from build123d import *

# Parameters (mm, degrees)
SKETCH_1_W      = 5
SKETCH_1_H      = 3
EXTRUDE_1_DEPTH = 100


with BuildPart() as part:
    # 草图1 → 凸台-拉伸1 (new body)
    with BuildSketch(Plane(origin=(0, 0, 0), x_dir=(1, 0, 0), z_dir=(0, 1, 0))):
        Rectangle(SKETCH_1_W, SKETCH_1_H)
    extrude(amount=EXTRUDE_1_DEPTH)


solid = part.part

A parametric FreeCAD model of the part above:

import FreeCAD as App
import Part
import Sketcher

doc = App.newDocument("Part")
params = doc.addObject("Spreadsheet::Sheet", "Params")
for row, (alias, value) in enumerate([
    ("sketch1_width", "5 mm"),
    ("sketch1_height", "3 mm"),
    ("pad1_length", "100 mm"),
], start=1):
    params.set(f"A{row}", alias)
    params.set(f"B{row}", "=" + value)
    params.setAlias(f"B{row}", alias)

body = doc.addObject("PartDesign::Body", "Body")

# Sketch on XZ plane
sketch1 = doc.addObject("Sketcher::SketchObject", "Sketch")
body.addObject(sketch1)
sketch1.AttachmentSupport = (doc.XZ_Plane, [""])
sketch1.MapMode = "FlatFace"
sketch1.addGeometry([
    Part.LineSegment(App.Vector(-2.5, -1.5, 0), App.Vector(-2.5, 1.5, 0)),
    Part.LineSegment(App.Vector(-2.5, 1.5, 0), App.Vector(2.5, 1.5, 0)),
    Part.LineSegment(App.Vector(2.5, 1.5, 0), App.Vector(2.5, -1.5, 0)),
    Part.LineSegment(App.Vector(2.5, -1.5, 0), App.Vector(-2.5, -1.5, 0)),
], False)
sketch1.addConstraint([
    Sketcher.Constraint("Coincident", 0, 2, 1, 1),
    Sketcher.Constraint("Coincident", 1, 2, 2, 1),
    Sketcher.Constraint("Coincident", 2, 2, 3, 1),
    Sketcher.Constraint("Coincident", 3, 2, 0, 1),
    Sketcher.Constraint("Vertical", 0),
    Sketcher.Constraint("Horizontal", 1),
    Sketcher.Constraint("Vertical", 2),
    Sketcher.Constraint("Horizontal", 3),
    Sketcher.Constraint("Symmetric", 0, 2, 2, 2, -1, 1),
    Sketcher.Constraint("DistanceX", 1, 1, 1, 2, 5.0),
    Sketcher.Constraint("DistanceY", 0, 1, 0, 2, 3.0),
])
sketch1.setExpression("Constraints[9]", "Params.sketch1_width")
sketch1.setExpression("Constraints[10]", "Params.sketch1_height")
pad1 = doc.addObject("PartDesign::Pad", "Pad")
body.addObject(pad1)
pad1.Profile = sketch1
pad1.setExpression("Length", "Params.pad1_length")
pad1.Reversed = True

doc.recompute()
